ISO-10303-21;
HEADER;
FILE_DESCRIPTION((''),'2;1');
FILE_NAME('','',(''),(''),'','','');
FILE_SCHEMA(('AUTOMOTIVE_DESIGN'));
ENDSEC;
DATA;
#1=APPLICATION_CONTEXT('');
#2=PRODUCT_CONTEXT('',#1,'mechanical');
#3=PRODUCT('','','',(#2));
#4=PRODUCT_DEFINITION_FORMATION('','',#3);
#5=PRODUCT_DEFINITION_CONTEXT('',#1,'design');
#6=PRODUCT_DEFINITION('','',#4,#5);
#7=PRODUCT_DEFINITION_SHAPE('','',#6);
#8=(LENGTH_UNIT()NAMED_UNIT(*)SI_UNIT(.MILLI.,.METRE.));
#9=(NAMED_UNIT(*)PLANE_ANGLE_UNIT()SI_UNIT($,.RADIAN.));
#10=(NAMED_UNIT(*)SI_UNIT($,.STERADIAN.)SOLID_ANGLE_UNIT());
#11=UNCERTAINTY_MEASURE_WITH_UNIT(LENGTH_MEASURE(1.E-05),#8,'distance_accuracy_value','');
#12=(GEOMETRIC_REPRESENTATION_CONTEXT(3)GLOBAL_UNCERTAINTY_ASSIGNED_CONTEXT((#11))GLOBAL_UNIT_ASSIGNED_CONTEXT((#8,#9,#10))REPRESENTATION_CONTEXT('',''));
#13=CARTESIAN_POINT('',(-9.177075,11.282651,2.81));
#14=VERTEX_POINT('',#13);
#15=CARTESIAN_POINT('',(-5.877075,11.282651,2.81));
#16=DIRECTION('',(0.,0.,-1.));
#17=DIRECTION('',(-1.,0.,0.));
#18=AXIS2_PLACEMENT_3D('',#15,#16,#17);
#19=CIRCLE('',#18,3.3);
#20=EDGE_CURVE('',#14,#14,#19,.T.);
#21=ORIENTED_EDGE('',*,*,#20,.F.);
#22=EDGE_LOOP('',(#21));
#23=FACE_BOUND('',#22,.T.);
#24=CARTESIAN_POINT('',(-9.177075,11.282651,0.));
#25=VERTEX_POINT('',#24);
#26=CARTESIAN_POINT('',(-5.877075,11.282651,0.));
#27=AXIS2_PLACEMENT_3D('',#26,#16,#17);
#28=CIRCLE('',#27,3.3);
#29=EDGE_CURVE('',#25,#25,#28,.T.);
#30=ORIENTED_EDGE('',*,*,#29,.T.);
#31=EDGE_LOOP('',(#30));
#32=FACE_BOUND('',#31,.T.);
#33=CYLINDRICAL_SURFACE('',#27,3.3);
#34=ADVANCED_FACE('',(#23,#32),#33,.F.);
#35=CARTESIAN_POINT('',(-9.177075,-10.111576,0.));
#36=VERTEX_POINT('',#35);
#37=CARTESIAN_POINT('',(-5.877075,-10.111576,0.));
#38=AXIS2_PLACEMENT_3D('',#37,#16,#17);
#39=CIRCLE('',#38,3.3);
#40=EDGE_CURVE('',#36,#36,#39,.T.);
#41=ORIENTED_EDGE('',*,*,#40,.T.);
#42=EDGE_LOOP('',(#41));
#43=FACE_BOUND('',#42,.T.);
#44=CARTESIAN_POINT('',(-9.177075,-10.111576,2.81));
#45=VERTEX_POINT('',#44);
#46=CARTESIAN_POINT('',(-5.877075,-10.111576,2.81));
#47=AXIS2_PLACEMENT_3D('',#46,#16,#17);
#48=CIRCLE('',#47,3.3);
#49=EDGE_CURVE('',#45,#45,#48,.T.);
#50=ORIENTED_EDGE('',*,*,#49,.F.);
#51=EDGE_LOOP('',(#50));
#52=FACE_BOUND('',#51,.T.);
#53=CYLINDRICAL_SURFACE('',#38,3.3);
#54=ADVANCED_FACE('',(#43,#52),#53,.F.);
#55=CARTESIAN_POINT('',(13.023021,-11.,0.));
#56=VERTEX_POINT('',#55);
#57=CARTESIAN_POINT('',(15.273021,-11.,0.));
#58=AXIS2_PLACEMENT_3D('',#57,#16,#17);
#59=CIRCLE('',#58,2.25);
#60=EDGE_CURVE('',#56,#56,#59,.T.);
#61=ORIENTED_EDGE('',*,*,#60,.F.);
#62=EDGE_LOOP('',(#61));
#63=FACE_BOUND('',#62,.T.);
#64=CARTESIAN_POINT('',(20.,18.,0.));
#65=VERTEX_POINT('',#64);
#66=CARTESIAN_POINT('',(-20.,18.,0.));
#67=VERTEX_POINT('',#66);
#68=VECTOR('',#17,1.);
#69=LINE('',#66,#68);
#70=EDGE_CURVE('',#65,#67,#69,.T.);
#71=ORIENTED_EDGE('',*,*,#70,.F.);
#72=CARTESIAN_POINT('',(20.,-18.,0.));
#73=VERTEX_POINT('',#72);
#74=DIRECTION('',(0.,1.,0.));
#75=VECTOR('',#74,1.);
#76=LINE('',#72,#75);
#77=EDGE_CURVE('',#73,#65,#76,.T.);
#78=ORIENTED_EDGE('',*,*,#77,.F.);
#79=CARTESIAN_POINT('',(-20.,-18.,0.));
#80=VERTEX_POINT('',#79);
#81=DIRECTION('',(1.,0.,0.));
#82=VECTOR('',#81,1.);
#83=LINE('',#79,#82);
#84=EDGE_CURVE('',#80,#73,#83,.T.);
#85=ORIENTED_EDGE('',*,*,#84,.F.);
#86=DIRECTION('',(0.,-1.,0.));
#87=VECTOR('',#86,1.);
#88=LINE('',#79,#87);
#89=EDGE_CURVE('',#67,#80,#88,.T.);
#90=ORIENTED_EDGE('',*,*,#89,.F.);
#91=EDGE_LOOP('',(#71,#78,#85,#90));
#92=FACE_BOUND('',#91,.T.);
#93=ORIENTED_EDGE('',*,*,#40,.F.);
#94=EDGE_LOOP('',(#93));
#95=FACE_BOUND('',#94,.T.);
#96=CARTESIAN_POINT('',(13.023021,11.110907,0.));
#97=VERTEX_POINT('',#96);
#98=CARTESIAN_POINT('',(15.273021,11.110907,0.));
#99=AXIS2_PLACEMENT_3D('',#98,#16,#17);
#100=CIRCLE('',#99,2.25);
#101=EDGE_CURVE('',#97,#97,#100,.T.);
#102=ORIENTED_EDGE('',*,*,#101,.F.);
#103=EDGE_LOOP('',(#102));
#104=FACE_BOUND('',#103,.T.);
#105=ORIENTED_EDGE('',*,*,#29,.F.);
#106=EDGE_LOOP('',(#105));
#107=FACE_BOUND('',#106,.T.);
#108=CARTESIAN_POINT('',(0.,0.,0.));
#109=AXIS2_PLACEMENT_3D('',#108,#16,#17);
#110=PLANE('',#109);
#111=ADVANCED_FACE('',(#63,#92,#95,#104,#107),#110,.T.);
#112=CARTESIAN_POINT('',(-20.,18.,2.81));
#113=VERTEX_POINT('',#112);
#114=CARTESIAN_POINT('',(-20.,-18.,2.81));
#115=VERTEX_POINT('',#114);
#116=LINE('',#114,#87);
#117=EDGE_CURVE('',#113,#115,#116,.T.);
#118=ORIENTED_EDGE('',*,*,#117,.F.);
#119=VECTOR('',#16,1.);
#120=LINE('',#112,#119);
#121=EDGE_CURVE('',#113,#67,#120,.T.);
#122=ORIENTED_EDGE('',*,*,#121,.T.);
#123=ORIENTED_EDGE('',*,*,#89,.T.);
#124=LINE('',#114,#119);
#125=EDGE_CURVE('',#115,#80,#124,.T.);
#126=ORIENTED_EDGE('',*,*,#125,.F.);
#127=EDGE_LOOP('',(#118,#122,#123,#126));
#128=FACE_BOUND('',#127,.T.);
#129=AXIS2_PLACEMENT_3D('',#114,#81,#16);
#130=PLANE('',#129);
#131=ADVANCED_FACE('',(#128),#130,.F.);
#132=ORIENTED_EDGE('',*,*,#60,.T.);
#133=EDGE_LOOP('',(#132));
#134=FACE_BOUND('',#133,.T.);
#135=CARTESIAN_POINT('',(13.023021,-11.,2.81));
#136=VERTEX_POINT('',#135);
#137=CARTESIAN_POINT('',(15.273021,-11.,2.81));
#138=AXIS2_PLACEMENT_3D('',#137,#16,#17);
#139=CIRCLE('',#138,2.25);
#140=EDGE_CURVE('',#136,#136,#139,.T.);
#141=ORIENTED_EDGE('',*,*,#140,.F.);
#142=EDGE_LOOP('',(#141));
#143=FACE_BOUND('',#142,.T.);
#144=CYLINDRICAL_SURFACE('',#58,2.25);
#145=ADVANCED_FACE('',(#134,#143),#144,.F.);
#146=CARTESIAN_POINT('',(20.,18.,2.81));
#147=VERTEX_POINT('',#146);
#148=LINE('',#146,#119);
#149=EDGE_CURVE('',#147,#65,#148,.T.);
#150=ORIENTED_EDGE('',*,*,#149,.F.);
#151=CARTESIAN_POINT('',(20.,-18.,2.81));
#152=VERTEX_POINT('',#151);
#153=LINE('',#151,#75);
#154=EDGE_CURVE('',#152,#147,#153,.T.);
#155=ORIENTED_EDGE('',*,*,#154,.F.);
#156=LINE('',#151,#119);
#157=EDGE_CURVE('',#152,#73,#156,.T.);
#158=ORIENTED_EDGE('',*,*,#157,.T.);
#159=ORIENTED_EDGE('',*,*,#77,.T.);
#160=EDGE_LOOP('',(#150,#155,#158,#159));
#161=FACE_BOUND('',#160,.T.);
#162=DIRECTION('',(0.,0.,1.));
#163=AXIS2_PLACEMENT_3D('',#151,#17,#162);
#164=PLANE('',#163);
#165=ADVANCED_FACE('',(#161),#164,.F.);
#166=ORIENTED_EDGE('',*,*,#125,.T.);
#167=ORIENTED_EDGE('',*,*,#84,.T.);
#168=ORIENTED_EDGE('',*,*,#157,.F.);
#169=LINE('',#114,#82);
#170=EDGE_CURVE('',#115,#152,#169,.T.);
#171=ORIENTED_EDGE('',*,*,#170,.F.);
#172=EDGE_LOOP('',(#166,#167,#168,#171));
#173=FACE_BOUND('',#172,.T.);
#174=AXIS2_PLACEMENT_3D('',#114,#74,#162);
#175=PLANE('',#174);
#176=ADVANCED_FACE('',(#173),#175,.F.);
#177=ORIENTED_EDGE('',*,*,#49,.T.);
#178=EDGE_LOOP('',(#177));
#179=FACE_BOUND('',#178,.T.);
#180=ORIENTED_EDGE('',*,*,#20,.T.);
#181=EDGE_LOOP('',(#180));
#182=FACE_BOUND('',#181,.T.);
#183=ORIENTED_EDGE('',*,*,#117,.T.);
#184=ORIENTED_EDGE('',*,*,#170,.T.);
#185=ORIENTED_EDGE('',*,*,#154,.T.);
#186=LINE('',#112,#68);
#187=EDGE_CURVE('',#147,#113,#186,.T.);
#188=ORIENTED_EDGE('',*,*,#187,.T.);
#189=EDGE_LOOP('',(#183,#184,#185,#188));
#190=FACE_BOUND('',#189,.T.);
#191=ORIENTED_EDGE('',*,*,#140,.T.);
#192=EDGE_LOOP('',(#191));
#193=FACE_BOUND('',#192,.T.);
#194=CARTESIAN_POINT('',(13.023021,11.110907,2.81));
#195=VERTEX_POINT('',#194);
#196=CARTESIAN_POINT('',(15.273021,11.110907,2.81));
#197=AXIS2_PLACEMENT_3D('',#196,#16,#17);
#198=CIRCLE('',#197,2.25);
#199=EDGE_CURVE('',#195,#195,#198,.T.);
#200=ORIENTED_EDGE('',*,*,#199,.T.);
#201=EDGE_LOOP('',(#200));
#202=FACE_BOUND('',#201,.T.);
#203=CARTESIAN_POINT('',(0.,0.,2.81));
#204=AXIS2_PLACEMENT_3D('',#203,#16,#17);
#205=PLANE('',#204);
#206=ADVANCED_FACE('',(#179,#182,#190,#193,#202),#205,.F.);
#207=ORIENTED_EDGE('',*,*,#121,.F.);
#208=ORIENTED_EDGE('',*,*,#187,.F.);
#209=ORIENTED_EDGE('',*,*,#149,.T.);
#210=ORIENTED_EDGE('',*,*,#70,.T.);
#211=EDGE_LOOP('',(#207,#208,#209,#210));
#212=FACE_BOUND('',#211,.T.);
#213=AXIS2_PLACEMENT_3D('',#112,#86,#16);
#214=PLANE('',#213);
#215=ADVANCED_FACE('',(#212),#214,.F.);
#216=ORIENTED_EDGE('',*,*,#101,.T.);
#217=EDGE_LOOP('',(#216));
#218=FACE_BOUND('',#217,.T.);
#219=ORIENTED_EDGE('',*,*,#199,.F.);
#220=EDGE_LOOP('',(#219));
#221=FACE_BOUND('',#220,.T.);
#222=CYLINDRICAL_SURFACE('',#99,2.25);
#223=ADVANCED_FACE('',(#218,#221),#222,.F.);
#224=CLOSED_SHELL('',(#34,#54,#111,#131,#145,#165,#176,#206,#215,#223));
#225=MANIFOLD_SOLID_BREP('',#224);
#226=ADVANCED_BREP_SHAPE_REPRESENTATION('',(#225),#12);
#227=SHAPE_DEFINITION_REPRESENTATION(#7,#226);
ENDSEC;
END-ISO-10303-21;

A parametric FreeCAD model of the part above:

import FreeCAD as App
import Part
import Sketcher

doc = App.newDocument("Part")
body = doc.addObject("PartDesign::Body", "Body")

# Sketch on XY plane
sketch1 = body.newObject("Sketcher::SketchObject", "Sketch")
sketch1.AttachmentSupport = (doc.getObject("XY_Plane"), [""])
sketch1.MapMode = "FlatFace"
sketch1.addGeometry([
    Part.LineSegment(App.Vector(-20, 18, 0), App.Vector(-20, -18, 0)),
    Part.LineSegment(App.Vector(-20, -18, 0), App.Vector(20, -18, 0)),
    Part.LineSegment(App.Vector(20, -18, 0), App.Vector(20, 18, 0)),
    Part.LineSegment(App.Vector(20, 18, 0), App.Vector(-20, 18, 0)),
], False)
sketch1.addConstraint([
    Sketcher.Constraint("Coincident", 0, 2, 1, 1),
    Sketcher.Constraint("Coincident", 1, 2, 2, 1),
    Sketcher.Constraint("Coincident", 2, 2, 3, 1),
    Sketcher.Constraint("Coincident", 3, 2, 0, 1),
    Sketcher.Constraint("Vertical", 0),
    Sketcher.Constraint("Horizontal", 1),
    Sketcher.Constraint("Vertical", 2),
    Sketcher.Constraint("Horizontal", 3),
    Sketcher.Constraint("Symmetric", 0, 2, 2, 2, -1, 1),
    Sketcher.Constraint("DistanceX", 1, 1, 1, 2, 40.0),
    Sketcher.Constraint("DistanceY", 0, 2, 0, 1, 36.0),
])
pad1 = body.newObject("PartDesign::Pad", "Pad")
pad1.Profile = sketch1
pad1.Length = 2.81

# Sketch on XY plane
sketch2 = body.newObject("Sketcher::SketchObject", "Sketch001")
sketch2.AttachmentSupport = (doc.getObject("XY_Plane"), [""])
sketch2.MapMode = "FlatFace"
sketch2.addGeometry([
    Part.Circle(App.Vector(15.3, -11, 0), App.Vector(0, 0, 1), 2.2),
    Part.Circle(App.Vector(15.3, 11.1, 0), App.Vector(0, 0, 1), 2.2),
], False)
sketch2.addConstraint([
    Sketcher.Constraint("Equal", 0, 1),
    Sketcher.Constraint("Vertical", 0, 3, 1, 3),
    Sketcher.Constraint("Diameter", 0, 4.5),
    Sketcher.Constraint("DistanceY", 0, 3, -1, 1, 11.0),
    Sketcher.Constraint("DistanceX", -1, 1, 0, 3, 15.273021),
    Sketcher.Constraint("DistanceY", -1, 1, 1, 3, 11.110907),
])
doc.recompute()
hole = body.newObject("PartDesign::Hole", "Hole")
hole.Profile = sketch2
hole.ThreadType = "None"
hole.Diameter = 4.5
hole.DepthType = "ThroughAll"
hole.Reversed = True

# Sketch on XY plane
sketch3 = body.newObject("Sketcher::SketchObject", "Sketch002")
sketch3.AttachmentSupport = (doc.getObject("XY_Plane"), [""])
sketch3.MapMode = "FlatFace"
sketch3.addGeometry([
    Part.Circle(App.Vector(-5.9, -10.1, 0), App.Vector(0, 0, 1), 3.3),
    Part.Circle(App.Vector(-5.9, 11.3, 0), App.Vector(0, 0, 1), 3.3),
], False)
sketch3.addConstraint([
    Sketcher.Constraint("Equal", 0, 1),
    Sketcher.Constraint("Vertical", 0, 3, 1, 3),
    Sketcher.Constraint("Diameter", 0, 6.6),
    Sketcher.Constraint("DistanceY", -1, 1, 1, 3, 11.282651),
    Sketcher.Constraint("DistanceX", 0, 3, -1, 1, 5.877075),
    Sketcher.Constraint("DistanceY", 0, 3, -1, 1, 10.111576),
])
doc.recompute()
hole2 = body.newObject("PartDesign::Hole", "Hole001")
hole2.Profile = sketch3
hole2.ThreadType = "None"
hole2.Diameter = 6.6
hole2.DepthType = "ThroughAll"
hole2.Reversed = True

doc.recompute()
